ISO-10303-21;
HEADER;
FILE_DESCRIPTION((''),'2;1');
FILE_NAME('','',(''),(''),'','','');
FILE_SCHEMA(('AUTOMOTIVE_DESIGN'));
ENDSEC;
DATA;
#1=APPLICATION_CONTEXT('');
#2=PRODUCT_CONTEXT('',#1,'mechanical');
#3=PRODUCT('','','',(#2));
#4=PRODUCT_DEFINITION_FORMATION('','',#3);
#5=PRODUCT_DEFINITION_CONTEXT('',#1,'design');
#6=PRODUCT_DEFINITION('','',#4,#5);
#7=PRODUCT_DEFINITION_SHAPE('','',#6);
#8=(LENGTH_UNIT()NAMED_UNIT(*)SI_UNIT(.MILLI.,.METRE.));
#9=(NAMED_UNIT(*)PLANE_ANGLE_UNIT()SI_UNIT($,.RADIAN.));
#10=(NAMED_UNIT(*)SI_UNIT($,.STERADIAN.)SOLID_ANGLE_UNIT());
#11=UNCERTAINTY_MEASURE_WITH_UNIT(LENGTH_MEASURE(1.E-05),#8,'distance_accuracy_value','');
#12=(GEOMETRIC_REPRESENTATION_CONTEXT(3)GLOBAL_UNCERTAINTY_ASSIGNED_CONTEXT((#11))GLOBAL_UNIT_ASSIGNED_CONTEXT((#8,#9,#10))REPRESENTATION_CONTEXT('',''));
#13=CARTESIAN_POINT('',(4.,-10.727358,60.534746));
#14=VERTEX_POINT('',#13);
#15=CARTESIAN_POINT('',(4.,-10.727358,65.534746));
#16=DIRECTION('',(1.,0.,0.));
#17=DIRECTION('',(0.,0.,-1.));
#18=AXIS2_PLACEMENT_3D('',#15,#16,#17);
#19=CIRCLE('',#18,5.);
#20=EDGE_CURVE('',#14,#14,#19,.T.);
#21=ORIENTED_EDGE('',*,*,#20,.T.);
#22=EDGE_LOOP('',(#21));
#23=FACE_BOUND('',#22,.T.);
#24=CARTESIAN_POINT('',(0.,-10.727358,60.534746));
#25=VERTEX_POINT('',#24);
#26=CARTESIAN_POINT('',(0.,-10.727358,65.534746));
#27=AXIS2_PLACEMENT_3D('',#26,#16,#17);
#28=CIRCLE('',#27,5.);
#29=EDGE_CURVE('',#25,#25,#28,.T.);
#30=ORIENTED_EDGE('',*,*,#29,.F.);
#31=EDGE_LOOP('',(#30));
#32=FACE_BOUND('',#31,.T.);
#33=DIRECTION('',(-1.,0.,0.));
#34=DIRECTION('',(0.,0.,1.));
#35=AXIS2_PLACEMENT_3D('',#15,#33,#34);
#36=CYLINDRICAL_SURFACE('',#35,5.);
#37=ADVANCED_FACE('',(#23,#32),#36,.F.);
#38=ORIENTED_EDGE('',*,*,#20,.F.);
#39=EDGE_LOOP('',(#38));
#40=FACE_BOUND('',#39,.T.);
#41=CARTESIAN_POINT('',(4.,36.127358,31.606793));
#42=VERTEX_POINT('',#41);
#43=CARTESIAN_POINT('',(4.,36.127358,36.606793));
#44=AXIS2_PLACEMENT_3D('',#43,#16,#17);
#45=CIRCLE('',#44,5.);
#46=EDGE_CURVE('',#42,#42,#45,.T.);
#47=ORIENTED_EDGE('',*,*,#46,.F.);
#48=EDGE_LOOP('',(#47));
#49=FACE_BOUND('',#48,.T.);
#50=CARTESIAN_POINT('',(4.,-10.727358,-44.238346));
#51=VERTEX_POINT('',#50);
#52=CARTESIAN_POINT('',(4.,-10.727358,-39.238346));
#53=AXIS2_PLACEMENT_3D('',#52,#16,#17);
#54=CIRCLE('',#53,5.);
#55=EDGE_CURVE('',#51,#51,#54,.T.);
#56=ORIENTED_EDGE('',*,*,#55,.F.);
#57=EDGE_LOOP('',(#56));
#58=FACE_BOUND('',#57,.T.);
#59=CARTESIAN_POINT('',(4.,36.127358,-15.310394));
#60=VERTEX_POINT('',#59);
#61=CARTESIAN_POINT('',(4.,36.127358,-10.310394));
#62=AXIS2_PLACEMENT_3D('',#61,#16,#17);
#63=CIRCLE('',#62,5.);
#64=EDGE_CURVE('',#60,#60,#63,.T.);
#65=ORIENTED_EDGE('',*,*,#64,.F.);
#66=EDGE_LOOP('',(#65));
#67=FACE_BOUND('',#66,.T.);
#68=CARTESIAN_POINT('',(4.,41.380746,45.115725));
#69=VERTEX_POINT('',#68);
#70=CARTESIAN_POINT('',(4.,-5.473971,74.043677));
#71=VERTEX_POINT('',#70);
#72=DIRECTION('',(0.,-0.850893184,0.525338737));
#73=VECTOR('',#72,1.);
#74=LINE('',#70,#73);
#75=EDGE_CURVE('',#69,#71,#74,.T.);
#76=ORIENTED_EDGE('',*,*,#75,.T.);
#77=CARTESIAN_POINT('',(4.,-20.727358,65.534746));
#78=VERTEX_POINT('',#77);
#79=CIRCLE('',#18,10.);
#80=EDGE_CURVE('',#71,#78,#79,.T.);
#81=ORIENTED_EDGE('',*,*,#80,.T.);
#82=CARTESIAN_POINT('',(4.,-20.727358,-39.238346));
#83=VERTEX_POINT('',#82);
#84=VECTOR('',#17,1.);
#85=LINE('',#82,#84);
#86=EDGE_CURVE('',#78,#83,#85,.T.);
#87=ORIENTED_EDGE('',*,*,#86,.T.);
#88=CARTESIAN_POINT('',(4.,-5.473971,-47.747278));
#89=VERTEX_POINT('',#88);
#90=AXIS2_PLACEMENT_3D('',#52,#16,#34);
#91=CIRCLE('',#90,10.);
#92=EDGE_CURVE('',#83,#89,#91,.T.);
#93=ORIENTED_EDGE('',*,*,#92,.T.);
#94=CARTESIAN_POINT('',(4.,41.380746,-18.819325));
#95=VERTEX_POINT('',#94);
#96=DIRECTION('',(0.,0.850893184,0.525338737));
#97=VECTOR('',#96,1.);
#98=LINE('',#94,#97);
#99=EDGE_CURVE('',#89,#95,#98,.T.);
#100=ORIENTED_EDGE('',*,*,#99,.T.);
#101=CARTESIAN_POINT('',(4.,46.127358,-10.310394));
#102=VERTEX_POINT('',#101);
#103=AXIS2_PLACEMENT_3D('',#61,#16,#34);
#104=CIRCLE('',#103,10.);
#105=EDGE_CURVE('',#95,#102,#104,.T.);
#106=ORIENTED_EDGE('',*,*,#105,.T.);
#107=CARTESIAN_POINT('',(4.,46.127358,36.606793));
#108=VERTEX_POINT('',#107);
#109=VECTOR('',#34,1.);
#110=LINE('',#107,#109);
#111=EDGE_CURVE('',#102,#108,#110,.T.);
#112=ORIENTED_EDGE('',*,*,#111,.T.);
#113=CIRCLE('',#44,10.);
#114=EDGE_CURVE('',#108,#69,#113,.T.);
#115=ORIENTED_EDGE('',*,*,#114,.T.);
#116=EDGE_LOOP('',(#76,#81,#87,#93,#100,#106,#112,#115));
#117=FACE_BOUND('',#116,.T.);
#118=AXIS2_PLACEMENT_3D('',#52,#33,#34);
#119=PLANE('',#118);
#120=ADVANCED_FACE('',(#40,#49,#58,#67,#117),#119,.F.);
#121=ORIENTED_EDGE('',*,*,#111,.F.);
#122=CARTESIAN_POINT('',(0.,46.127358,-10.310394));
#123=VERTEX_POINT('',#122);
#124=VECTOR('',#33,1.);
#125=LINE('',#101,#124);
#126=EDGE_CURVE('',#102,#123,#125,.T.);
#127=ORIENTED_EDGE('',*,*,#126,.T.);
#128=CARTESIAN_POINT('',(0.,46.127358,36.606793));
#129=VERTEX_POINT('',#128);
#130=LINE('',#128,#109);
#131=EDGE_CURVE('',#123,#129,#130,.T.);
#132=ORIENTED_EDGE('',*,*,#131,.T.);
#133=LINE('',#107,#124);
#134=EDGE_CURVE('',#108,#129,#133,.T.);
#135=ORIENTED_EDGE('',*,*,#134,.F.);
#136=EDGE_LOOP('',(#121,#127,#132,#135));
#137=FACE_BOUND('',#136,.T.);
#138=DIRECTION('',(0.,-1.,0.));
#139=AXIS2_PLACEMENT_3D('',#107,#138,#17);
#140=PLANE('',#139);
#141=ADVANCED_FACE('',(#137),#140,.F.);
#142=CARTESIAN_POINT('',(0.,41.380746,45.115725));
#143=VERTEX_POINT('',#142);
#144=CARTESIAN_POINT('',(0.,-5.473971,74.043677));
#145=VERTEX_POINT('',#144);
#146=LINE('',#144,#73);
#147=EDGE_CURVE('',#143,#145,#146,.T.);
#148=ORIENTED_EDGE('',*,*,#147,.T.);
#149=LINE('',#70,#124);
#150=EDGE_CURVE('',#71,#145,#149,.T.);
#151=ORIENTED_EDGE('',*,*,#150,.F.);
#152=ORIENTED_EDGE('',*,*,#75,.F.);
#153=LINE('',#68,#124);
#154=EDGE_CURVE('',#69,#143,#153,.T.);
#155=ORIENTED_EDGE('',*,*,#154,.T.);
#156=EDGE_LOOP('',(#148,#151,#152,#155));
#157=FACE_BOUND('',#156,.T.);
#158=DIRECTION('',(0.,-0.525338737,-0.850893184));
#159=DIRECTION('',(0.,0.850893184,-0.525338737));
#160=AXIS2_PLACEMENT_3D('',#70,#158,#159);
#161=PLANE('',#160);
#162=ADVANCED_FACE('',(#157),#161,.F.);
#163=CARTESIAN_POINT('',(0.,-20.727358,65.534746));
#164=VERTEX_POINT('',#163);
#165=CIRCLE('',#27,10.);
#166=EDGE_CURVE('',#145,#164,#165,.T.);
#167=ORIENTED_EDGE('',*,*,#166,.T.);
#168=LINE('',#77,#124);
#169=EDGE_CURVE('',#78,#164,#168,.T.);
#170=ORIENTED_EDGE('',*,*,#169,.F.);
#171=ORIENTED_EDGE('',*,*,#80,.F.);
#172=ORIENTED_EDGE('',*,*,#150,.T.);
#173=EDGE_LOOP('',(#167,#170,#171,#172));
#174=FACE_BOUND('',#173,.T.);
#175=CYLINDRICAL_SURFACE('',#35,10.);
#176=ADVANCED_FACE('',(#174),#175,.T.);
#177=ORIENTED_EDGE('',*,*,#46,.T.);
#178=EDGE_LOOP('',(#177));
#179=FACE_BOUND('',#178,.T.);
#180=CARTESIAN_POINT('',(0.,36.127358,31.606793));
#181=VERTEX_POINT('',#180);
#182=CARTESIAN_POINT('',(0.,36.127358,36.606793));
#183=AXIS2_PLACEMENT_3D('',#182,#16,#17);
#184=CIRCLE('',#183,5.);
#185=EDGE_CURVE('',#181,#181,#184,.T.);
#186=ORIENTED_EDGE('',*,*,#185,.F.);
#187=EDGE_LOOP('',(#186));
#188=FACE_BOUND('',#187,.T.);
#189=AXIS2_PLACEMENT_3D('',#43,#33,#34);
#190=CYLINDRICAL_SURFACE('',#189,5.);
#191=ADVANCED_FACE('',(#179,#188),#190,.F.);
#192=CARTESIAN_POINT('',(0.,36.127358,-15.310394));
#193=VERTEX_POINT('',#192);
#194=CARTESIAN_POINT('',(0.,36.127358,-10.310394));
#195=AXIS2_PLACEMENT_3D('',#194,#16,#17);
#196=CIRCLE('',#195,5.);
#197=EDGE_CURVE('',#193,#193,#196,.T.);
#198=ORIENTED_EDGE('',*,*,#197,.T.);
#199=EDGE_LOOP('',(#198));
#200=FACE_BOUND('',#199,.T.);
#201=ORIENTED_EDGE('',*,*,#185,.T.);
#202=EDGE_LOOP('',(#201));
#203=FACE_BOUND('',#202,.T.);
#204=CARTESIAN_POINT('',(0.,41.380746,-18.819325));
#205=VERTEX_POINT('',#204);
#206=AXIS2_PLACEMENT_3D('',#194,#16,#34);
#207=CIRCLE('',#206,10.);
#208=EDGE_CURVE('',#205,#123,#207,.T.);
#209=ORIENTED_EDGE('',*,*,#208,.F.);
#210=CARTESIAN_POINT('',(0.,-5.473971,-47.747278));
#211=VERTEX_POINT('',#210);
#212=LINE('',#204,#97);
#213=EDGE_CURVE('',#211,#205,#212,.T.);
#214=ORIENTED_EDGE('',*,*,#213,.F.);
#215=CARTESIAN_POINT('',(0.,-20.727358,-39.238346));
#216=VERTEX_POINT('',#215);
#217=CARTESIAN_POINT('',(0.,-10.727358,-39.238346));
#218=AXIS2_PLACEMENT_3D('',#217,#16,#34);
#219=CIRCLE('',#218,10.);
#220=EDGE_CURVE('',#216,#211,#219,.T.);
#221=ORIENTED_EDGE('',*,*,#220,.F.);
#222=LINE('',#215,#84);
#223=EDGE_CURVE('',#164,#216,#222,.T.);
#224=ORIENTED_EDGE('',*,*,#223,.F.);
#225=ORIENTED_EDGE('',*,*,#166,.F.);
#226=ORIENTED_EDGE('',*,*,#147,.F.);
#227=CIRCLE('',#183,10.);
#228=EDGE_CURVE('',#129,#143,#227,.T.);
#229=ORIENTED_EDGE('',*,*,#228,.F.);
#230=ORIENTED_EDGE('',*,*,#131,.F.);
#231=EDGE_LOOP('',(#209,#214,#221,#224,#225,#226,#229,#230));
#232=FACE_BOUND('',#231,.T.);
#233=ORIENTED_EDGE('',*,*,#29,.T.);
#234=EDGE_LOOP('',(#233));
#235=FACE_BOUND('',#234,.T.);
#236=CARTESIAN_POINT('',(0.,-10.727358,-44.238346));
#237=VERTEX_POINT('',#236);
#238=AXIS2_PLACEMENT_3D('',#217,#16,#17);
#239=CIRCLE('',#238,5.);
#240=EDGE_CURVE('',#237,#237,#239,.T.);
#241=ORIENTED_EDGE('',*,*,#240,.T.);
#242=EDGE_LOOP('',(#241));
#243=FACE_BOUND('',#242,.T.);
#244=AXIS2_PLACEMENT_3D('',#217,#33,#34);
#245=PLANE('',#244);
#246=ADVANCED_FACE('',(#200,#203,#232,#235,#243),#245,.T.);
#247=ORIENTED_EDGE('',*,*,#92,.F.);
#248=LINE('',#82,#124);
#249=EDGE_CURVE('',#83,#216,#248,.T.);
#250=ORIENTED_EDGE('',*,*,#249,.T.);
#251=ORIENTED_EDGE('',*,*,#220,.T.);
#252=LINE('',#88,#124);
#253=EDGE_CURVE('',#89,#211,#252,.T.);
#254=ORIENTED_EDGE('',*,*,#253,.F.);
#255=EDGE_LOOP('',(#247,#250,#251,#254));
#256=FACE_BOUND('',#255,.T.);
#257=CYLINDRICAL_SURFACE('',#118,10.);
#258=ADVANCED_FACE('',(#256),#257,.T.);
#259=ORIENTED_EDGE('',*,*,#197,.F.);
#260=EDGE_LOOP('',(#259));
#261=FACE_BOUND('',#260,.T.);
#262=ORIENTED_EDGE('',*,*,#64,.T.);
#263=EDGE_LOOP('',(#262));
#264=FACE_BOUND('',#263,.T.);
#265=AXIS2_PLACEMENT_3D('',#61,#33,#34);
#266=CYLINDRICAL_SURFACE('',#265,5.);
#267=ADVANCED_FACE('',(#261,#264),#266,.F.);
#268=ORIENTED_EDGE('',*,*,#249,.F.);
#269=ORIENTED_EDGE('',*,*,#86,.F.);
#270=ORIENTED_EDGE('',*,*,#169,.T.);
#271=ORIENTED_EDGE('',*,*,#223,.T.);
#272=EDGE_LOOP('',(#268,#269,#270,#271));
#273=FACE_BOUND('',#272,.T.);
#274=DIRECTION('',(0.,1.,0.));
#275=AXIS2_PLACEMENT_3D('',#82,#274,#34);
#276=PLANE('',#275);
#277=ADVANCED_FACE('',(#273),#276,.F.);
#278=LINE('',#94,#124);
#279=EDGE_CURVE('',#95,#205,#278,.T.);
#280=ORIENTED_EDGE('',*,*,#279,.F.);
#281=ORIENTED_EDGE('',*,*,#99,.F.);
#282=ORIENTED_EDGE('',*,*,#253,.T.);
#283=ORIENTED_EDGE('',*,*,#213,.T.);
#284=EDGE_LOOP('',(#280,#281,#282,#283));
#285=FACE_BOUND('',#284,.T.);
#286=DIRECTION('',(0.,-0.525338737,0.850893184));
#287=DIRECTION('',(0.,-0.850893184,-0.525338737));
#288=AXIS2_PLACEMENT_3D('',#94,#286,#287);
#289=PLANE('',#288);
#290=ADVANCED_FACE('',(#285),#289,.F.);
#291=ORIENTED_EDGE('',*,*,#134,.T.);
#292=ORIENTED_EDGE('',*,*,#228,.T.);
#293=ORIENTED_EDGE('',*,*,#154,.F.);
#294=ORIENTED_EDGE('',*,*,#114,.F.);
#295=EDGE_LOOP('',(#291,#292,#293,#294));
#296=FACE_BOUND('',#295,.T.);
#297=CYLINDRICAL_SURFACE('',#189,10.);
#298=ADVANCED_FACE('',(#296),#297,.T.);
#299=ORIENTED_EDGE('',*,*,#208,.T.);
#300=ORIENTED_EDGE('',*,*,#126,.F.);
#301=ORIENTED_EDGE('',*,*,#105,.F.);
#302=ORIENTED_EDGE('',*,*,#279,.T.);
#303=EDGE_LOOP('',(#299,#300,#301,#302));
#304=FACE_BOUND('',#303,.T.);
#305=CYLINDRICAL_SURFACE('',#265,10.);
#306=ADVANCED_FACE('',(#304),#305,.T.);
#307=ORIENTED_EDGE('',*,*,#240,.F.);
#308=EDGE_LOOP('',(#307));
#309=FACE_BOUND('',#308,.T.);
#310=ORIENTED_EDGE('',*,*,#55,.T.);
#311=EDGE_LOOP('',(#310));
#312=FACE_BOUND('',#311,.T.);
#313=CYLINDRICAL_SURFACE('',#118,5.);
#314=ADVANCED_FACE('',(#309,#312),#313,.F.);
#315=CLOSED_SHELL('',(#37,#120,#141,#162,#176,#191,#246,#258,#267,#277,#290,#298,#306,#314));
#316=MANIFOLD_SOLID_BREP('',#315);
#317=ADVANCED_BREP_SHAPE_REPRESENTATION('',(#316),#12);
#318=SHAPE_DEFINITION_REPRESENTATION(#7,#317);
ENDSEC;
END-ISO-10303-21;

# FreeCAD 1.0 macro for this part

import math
import FreeCAD as App
import Part
import Sketcher
from FreeCAD import Vector
Q = App.Units.Quantity

doc = App.newDocument("Part")
body = doc.addObject("PartDesign::Body", "Body")

# Sketch on YZ plane
sketch1 = body.newObject("Sketcher::SketchObject", "Sketch")
sketch1.AttachmentSupport = (doc.getObject("YZ_Plane"), [""])
sketch1.MapMode = "FlatFace"
sketch1.addGeometry([
    Part.LineSegment(Vector(46.127358, -10.310394, 0), Vector(46.127358, 36.606793, 0)),  # 0
    Part.ArcOfCircle(Part.Circle(Vector(36.127358, 36.606793, 0), Vector(0, 0, 1), 10), math.radians(0), math.radians(58.30895)),  # 1
    Part.LineSegment(Vector(41.380746, 45.115725, 0), Vector(-5.473971, 74.043677, 0)),  # 2
    Part.ArcOfCircle(Part.Circle(Vector(-10.727358, 65.534746, 0), Vector(0, 0, 1), 10), math.radians(58.30895), math.radians(180)),  # 3
    Part.LineSegment(Vector(-20.727358, 65.534746, 0), Vector(-20.727358, -39.238346, 0)),  # 4
    Part.ArcOfCircle(Part.Circle(Vector(-10.727358, -39.238346, 0), Vector(0, 0, 1), 10), math.radians(180), math.radians(301.69105)),  # 5
    Part.LineSegment(Vector(-5.473971, -47.747278, 0), Vector(41.380746, -18.819325, 0)),  # 6
    Part.ArcOfCircle(Part.Circle(Vector(36.127358, -10.310394, 0), Vector(0, 0, 1), 10), math.radians(-58.30895), math.radians(0)),  # 7
    Part.Circle(Vector(-10.727358, -39.238346, 0), Vector(0, 0, 1), 5),  # 8
    Part.Circle(Vector(-10.727358, 65.534746, 0), Vector(0, 0, 1), 5),  # 9
    Part.Circle(Vector(36.127358, -10.310394, 0), Vector(0, 0, 1), 5),  # 10
    Part.Circle(Vector(36.127358, 36.606793, 0), Vector(0, 0, 1), 5),  # 11
], False)
sketch1.addConstraint([
    Sketcher.Constraint("Tangent", 0, 2, 1, 1),
    Sketcher.Constraint("Tangent", 1, 2, 2, 1),
    Sketcher.Constraint("Tangent", 2, 2, 3, 1),
    Sketcher.Constraint("Tangent", 3, 2, 4, 1),
    Sketcher.Constraint("Tangent", 4, 2, 5, 1),
    Sketcher.Constraint("Tangent", 5, 2, 6, 1),
    Sketcher.Constraint("Tangent", 6, 2, 7, 1),
    Sketcher.Constraint("Tangent", 7, 2, 0, 1),
    Sketcher.Constraint("Vertical", 0),
    Sketcher.Constraint("Vertical", 4),
    Sketcher.Constraint("Coincident", 8, 3, 5, 3),
    Sketcher.Constraint("Coincident", 9, 3, 3, 3),
    Sketcher.Constraint("Coincident", 10, 3, 7, 3),
    Sketcher.Constraint("Coincident", 11, 3, 1, 3),
    Sketcher.Constraint("Equal", 1, 3),
    Sketcher.Constraint("Equal", 3, 5),
    Sketcher.Constraint("Equal", 5, 7),
    Sketcher.Constraint("Equal", 8, 9),
    Sketcher.Constraint("Equal", 9, 10),
    Sketcher.Constraint("Equal", 10, 11),
    Sketcher.Constraint("Vertical", 2, 2, 5, 2),
    Sketcher.Constraint("Diameter", 8, Q("10 mm")),
    Sketcher.Constraint("Radius", 1, Q("10 mm")),
    Sketcher.Constraint("DistanceY", 0, 1, 0, 2, Q("46.917186 mm")),
    Sketcher.Constraint("DistanceY", 4, 2, 4, 1, Q("104.773092 mm")),
    Sketcher.Constraint("DistanceX", -1, 1, 1, 3, Q("36.127358 mm")),
    Sketcher.Constraint("DistanceX", 3, 3, -1, 1, Q("10.727358 mm")),
    Sketcher.Constraint("DistanceY", 5, 2, -1, 1, Q("47.747278 mm")),
])
pad1 = body.newObject("PartDesign::Pad", "Pad")
pad1.Profile = sketch1
pad1.Length = 4

doc.recompute()
